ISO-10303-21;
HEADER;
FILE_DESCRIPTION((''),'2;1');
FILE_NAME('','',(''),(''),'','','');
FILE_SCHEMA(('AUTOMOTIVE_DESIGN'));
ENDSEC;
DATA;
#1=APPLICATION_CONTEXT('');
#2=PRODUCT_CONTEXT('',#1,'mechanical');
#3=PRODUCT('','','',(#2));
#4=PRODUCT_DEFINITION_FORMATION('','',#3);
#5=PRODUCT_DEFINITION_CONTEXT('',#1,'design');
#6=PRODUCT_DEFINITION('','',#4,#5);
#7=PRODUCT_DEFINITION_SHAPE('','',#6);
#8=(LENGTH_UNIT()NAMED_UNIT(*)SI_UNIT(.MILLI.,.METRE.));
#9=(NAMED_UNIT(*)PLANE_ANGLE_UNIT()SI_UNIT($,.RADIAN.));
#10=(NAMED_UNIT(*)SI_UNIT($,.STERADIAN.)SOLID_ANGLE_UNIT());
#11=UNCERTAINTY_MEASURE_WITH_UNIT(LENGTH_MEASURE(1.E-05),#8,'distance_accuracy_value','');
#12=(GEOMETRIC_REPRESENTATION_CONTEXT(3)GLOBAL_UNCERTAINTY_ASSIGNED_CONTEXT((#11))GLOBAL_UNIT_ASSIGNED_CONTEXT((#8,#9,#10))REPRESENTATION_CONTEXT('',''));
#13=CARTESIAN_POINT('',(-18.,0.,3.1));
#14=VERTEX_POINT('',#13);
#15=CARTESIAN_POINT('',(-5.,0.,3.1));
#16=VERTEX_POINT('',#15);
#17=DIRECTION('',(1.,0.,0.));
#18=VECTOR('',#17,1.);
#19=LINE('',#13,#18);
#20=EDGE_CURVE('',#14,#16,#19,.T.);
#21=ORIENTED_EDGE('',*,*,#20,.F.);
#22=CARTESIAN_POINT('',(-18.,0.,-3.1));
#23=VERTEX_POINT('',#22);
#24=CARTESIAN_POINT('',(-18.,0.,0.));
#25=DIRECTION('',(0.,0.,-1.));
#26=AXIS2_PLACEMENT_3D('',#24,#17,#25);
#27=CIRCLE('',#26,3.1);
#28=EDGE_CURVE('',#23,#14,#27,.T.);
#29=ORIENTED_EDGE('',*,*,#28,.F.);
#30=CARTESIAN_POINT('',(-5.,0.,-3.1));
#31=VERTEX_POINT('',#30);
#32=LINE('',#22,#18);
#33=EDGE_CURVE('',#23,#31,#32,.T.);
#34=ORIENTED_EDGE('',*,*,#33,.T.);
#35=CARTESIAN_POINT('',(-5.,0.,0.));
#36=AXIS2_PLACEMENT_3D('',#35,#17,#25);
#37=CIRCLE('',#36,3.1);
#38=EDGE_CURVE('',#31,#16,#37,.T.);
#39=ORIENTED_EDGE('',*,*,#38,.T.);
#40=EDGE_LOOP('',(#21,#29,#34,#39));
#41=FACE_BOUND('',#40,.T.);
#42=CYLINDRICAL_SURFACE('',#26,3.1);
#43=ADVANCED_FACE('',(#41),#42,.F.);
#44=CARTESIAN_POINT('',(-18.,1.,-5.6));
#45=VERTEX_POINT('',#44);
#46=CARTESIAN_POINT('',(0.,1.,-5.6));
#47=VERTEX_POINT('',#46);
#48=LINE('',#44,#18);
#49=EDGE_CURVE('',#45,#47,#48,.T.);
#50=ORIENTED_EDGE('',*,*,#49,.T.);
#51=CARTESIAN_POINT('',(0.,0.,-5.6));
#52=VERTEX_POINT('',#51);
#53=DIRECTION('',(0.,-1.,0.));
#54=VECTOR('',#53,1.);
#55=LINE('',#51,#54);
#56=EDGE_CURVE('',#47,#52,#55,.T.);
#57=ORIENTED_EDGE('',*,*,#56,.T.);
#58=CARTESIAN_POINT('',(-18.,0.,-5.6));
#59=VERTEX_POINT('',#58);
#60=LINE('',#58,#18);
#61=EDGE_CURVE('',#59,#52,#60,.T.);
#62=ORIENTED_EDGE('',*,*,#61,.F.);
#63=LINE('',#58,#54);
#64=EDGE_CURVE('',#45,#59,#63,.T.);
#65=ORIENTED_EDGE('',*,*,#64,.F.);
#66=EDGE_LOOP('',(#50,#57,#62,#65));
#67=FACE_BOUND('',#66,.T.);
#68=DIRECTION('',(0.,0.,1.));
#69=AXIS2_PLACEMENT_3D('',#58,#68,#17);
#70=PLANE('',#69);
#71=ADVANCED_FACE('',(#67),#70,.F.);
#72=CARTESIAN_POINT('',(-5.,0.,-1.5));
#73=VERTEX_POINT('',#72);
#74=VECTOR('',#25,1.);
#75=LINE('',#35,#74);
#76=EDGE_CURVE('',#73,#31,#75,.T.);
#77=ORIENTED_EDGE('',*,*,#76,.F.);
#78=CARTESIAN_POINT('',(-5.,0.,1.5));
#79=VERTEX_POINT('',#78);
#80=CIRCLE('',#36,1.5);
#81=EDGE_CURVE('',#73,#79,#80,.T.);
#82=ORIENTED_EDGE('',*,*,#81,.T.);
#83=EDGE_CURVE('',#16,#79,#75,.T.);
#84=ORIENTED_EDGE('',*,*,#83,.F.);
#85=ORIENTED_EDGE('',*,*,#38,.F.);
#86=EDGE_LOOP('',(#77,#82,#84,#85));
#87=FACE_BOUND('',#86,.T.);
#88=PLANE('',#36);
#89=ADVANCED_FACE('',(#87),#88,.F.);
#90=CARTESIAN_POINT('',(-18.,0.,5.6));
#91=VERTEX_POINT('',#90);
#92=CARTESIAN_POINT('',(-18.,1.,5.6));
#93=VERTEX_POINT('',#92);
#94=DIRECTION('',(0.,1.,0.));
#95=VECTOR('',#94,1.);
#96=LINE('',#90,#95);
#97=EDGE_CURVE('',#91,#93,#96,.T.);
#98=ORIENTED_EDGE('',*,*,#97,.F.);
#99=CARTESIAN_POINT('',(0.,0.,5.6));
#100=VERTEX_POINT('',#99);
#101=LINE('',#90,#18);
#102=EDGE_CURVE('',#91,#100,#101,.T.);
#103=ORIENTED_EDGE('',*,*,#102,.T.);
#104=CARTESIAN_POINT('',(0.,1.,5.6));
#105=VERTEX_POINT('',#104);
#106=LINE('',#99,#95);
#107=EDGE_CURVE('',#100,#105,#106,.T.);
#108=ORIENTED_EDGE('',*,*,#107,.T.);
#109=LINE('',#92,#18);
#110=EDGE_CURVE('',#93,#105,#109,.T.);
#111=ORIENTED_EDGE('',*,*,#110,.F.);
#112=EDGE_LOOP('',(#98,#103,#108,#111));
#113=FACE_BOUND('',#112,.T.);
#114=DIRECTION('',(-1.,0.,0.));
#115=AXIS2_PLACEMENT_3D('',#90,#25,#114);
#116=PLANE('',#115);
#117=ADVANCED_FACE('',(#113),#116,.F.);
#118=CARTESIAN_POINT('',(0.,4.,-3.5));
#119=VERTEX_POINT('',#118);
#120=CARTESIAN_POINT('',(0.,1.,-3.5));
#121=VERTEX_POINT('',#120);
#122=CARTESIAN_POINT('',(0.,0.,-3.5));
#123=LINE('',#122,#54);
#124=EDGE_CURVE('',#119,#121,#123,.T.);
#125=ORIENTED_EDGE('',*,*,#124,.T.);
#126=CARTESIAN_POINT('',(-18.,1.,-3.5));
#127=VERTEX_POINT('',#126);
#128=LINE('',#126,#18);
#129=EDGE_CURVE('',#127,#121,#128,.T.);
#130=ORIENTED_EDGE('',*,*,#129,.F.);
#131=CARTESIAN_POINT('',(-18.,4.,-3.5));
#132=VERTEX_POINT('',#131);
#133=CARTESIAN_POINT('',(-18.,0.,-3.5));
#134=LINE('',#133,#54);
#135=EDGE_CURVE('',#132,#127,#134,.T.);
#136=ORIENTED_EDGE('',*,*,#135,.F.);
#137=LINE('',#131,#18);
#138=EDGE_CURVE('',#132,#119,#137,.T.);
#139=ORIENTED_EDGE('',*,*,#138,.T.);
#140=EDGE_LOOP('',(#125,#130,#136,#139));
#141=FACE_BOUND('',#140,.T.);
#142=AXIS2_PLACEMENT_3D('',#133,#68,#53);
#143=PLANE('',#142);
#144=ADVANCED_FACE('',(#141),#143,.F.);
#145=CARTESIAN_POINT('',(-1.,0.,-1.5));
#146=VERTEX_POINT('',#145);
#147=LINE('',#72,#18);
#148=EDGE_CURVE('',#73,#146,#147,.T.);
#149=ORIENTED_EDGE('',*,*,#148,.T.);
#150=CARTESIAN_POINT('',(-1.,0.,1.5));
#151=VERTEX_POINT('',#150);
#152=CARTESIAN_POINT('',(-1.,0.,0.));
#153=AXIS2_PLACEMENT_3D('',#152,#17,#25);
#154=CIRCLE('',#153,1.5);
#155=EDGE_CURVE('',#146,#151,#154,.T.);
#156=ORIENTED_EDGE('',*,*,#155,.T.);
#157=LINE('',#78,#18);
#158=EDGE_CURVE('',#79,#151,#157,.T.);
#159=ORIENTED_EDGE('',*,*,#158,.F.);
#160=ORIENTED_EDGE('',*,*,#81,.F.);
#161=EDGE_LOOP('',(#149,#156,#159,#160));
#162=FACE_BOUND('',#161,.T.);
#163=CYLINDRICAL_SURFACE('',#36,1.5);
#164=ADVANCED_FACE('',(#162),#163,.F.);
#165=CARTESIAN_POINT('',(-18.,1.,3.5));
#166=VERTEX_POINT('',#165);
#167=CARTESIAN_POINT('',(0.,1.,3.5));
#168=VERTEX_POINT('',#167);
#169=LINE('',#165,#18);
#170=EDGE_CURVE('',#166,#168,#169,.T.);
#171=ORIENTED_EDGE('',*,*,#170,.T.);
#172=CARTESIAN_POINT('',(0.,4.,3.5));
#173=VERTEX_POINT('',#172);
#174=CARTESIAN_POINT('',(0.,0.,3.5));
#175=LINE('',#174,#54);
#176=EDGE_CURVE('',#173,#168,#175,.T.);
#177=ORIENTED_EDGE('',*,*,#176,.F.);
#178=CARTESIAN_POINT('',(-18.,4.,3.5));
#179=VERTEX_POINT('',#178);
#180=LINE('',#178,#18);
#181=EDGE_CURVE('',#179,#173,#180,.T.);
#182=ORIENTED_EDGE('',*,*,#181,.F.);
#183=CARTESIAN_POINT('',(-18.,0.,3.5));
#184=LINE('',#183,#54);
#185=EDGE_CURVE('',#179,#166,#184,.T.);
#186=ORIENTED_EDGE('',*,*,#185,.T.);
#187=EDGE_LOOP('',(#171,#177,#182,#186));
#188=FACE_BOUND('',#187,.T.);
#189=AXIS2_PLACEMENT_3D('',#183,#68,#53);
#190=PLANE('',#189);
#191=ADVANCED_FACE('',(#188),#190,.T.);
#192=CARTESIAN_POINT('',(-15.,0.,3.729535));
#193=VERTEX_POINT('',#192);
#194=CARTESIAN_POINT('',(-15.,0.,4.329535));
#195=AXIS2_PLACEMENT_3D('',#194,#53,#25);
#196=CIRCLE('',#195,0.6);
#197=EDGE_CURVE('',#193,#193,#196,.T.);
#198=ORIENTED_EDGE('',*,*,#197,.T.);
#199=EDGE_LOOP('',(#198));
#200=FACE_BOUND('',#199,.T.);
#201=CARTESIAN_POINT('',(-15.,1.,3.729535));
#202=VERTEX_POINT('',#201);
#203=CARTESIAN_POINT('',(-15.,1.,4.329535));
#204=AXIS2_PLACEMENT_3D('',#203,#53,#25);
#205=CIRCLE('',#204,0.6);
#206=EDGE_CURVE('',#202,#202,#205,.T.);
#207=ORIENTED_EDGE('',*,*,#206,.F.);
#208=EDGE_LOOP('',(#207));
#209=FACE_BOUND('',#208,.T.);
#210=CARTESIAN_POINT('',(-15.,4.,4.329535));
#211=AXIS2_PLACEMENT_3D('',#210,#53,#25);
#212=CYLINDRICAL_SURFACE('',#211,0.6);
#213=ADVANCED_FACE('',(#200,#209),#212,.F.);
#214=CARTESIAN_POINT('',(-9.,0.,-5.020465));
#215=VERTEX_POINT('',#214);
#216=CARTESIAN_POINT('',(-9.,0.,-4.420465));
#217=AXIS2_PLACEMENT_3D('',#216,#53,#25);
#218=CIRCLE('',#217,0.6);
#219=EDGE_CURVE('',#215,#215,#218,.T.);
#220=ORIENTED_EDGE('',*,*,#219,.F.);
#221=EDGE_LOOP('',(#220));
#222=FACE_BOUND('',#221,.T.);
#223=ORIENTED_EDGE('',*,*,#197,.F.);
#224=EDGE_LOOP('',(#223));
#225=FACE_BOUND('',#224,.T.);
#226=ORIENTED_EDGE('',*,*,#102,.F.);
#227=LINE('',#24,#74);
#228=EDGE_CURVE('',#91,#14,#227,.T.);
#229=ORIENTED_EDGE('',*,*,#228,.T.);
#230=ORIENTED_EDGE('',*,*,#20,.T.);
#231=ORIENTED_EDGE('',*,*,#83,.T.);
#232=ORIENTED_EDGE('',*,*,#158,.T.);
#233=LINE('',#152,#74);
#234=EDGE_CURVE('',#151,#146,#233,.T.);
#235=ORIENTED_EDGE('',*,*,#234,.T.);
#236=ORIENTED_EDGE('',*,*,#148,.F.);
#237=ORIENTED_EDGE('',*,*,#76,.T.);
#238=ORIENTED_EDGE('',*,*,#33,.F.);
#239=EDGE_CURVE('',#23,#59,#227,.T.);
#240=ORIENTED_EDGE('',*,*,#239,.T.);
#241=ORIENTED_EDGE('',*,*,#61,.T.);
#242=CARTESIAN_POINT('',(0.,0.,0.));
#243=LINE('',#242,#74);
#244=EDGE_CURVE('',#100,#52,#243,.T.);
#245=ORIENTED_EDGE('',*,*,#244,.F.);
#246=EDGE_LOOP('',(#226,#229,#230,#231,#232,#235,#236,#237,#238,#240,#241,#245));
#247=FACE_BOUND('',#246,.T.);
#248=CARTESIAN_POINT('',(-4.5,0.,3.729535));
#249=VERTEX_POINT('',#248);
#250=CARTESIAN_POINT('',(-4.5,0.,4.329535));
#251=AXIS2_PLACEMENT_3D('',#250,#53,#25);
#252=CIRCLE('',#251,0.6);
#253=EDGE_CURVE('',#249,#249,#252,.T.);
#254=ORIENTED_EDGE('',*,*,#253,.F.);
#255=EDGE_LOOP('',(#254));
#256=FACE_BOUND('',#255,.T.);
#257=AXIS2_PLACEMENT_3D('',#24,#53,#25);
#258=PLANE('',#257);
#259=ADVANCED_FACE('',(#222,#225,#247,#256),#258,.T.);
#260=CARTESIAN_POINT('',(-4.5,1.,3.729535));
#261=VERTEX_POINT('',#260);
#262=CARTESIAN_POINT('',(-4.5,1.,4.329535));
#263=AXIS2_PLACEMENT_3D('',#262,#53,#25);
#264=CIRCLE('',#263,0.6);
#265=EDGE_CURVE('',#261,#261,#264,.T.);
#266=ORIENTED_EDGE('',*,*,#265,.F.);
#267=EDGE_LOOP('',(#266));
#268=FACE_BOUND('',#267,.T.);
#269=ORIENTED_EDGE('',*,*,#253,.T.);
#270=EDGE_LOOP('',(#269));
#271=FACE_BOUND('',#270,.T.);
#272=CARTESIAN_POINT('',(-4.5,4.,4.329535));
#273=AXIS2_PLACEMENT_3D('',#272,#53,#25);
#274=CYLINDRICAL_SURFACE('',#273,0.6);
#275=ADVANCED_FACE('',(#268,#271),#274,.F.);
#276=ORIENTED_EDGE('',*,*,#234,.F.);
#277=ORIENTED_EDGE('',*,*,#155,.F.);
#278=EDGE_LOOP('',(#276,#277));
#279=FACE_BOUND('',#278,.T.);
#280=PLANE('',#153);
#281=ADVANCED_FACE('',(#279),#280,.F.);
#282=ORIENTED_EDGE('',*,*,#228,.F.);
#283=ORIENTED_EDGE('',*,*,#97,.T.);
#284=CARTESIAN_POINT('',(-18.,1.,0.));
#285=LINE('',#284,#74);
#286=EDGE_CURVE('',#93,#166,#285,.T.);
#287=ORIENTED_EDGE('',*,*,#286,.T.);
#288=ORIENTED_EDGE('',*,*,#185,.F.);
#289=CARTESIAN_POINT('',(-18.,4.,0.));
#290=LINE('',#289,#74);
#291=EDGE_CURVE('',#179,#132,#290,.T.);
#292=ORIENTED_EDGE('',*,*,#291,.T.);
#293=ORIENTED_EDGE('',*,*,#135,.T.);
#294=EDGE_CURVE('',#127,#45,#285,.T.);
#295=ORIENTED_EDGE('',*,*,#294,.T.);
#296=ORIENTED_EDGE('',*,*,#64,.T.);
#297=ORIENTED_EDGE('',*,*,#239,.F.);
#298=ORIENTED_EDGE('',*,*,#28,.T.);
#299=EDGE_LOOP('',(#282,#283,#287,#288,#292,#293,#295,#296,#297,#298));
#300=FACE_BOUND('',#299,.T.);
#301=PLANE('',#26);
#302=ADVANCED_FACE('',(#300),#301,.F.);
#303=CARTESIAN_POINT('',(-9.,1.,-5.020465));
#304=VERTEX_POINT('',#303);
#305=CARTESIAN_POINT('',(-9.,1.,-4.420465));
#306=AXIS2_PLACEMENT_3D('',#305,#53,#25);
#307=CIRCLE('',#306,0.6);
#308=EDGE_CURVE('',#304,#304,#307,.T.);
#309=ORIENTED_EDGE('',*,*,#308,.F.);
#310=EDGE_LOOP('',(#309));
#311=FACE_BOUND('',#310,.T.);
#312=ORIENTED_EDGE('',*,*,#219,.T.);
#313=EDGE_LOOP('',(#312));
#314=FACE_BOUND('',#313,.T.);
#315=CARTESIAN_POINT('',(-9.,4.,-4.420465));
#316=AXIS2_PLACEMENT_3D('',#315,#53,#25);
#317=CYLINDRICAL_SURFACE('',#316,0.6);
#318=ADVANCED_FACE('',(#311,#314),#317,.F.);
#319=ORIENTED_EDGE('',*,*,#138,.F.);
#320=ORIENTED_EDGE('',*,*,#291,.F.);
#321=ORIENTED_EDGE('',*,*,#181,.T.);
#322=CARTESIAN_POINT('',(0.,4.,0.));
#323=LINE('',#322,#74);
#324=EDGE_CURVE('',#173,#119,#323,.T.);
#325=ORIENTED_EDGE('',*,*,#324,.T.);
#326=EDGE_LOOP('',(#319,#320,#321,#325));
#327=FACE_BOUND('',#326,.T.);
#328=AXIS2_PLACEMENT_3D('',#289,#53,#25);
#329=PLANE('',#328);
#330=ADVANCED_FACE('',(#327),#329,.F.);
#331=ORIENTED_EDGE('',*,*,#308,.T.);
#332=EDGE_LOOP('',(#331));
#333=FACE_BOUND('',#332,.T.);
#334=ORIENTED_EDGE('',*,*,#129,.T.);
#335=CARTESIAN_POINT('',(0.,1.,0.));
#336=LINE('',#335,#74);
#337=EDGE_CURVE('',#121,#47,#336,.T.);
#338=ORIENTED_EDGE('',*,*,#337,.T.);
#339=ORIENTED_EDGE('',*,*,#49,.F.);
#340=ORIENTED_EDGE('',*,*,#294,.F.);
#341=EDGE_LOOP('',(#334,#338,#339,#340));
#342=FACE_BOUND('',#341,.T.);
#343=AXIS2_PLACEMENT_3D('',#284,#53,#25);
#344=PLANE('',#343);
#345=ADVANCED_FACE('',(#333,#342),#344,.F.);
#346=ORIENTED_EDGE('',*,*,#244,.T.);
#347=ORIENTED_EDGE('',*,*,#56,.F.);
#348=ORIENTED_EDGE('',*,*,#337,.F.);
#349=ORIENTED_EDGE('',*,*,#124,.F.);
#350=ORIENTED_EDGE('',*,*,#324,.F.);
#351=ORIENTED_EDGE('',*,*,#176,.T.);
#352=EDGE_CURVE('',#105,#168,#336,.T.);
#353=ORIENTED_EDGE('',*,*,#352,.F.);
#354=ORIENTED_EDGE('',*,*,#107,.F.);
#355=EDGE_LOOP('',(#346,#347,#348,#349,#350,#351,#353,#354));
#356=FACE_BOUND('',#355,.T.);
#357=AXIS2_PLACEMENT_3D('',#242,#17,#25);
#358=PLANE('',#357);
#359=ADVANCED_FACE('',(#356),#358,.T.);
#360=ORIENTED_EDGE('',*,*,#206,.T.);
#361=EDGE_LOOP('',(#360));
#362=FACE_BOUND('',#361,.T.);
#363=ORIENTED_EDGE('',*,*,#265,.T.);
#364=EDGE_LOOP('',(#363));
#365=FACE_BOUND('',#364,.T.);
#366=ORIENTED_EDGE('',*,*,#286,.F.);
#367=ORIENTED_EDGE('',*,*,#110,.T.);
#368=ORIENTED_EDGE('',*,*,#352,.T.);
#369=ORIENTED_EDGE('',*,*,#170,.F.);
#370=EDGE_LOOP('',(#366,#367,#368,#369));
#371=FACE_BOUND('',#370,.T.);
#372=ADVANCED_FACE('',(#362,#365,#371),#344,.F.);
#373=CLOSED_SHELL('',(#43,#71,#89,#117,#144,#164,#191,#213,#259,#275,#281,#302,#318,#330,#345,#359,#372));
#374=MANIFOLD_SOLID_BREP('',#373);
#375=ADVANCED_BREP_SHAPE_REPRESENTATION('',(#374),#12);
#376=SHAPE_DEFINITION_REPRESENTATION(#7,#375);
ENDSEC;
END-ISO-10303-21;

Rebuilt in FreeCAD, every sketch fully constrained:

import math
import FreeCAD as App
import Part
import Sketcher
from FreeCAD import Vector
Q = App.Units.Quantity

doc = App.newDocument("Part")
body = doc.addObject("PartDesign::Body", "Body")

# Sketch on YZ plane
sketch1 = doc.addObject("Sketcher::SketchObject", "Sketch")
body.addObject(sketch1)
sketch1.AttachmentSupport = (doc.YZ_Plane, [""])
sketch1.MapMode = "FlatFace"
sketch1.addGeometry([
    Part.ArcOfCircle(Part.Circle(Vector(0, 0, 0), Vector(0, 0, 1), 3.1), math.radians(-90), math.radians(90)),  # 0
    Part.LineSegment(Vector(0, -3.1, 0), Vector(0, -5.6, 0)),  # 1
    Part.LineSegment(Vector(0, -5.6, 0), Vector(1, -5.6, 0)),  # 2
    Part.LineSegment(Vector(1, -5.6, 0), Vector(1, -3.5, 0)),  # 3
    Part.LineSegment(Vector(1, -3.5, 0), Vector(4, -3.5, 0)),  # 4
    Part.LineSegment(Vector(4, -3.5, 0), Vector(4, 3.5, 0)),  # 5
    Part.LineSegment(Vector(4, 3.5, 0), Vector(1, 3.5, 0)),  # 6
    Part.LineSegment(Vector(1, 3.5, 0), Vector(1, 5.6, 0)),  # 7
    Part.LineSegment(Vector(1, 5.6, 0), Vector(0, 5.6, 0)),  # 8
    Part.LineSegment(Vector(0, 5.6, 0), Vector(0, 3.1, 0)),  # 9
], False)
sketch1.addConstraint([
    Sketcher.Constraint("Coincident", 0, 1, 1, 1),
    Sketcher.Constraint("Coincident", 1, 2, 2, 1),
    Sketcher.Constraint("Coincident", 2, 2, 3, 1),
    Sketcher.Constraint("Coincident", 3, 2, 4, 1),
    Sketcher.Constraint("Coincident", 4, 2, 5, 1),
    Sketcher.Constraint("Coincident", 5, 2, 6, 1),
    Sketcher.Constraint("Coincident", 6, 2, 7, 1),
    Sketcher.Constraint("Coincident", 7, 2, 8, 1),
    Sketcher.Constraint("Coincident", 8, 2, 9, 1),
    Sketcher.Constraint("Coincident", 9, 2, 0, 2),
    Sketcher.Constraint("Vertical", 1),
    Sketcher.Constraint("Horizontal", 2),
    Sketcher.Constraint("Vertical", 3),
    Sketcher.Constraint("Horizontal", 4),
    Sketcher.Constraint("Vertical", 5),
    Sketcher.Constraint("Horizontal", 6),
    Sketcher.Constraint("Vertical", 7),
    Sketcher.Constraint("Horizontal", 8),
    Sketcher.Constraint("Vertical", 9),
    Sketcher.Constraint("Coincident", 0, 3, -1, 1),
    Sketcher.Constraint("Symmetric", 1, 2, 8, 2, -1, 1),
    Sketcher.Constraint("Symmetric", 3, 2, 6, 2, -1),
    Sketcher.Constraint("PointOnObject", 0, 1, -2),
    Sketcher.Constraint("Radius", 0, Q("3.1 mm")),
    Sketcher.Constraint("DistanceX", 2, 1, 2, 2, Q("1 mm")),
    Sketcher.Constraint("DistanceX", 4, 1, 4, 2, Q("3 mm")),
    Sketcher.Constraint("DistanceY", 5, 1, 5, 2, Q("7 mm")),
    Sketcher.Constraint("DistanceY", 1, 2, 1, 1, Q("2.5 mm")),
])
pad1 = doc.addObject("PartDesign::Pad", "Pad")
body.addObject(pad1)
pad1.Profile = sketch1
pad1.Length = 18
pad1.Reversed = True

# Sketch on YZ plane
sketch2 = doc.addObject("Sketcher::SketchObject", "Sketch001")
body.addObject(sketch2)
sketch2.AttachmentSupport = (doc.YZ_Plane, [""])
sketch2.MapMode = "FlatFace"
sketch2.addGeometry([
    Part.ArcOfCircle(Part.Circle(Vector(0, 0, 0), Vector(0, 0, 1), 3.1), math.radians(-90), math.radians(90)),
    Part.LineSegment(Vector(0, 3.1, 0), Vector(0, 1.5, 0)),
    Part.ArcOfCircle(Part.Circle(Vector(0, 0, 0), Vector(0, 0, 1), 1.5), math.radians(-90), math.radians(90)),
    Part.LineSegment(Vector(0, -1.5, 0), Vector(0, -3.1, 0)),
], False)
sketch2.addConstraint([
    Sketcher.Constraint("Coincident", 0, 2, 1, 1),
    Sketcher.Constraint("Coincident", 1, 2, 2, 2),
    Sketcher.Constraint("Coincident", 2, 1, 3, 1),
    Sketcher.Constraint("Coincident", 3, 2, 0, 1),
    Sketcher.Constraint("Vertical", 1),
    Sketcher.Constraint("Vertical", 3),
    Sketcher.Constraint("Coincident", 0, 3, -1, 1),
    Sketcher.Constraint("Coincident", 2, 3, -1, 1),
    Sketcher.Constraint("PointOnObject", 0, 2, -2),
    Sketcher.Constraint("PointOnObject", 2, 1, -2),
    Sketcher.Constraint("Radius", 0, Q("3.1 mm")),
    Sketcher.Constraint("Radius", 2, Q("1.5 mm")),
])
pad2 = doc.addObject("PartDesign::Pad", "Pad001")
body.addObject(pad2)
pad2.Profile = sketch2
pad2.Length = 5
pad2.Reversed = True

# Sketch on YZ plane
sketch3 = doc.addObject("Sketcher::SketchObject", "Sketch002")
body.addObject(sketch3)
sketch3.AttachmentSupport = (doc.YZ_Plane, [""])
sketch3.MapMode = "FlatFace"
sketch3.addGeometry([
    Part.ArcOfCircle(Part.Circle(Vector(0, 0, 0), Vector(0, 0, 1), 1.5), math.radians(-90), math.radians(90)),
    Part.LineSegment(Vector(0, 1.5, 0), Vector(0, -1.5, 0)),
], False)
sketch3.addConstraint([
    Sketcher.Constraint("Coincident", 0, 1, 1, 2),
    Sketcher.Constraint("Coincident", 1, 1, 0, 2),
    Sketcher.Constraint("Vertical", 1),
    Sketcher.Constraint("Coincident", 0, 3, -1, 1),
    Sketcher.Constraint("PointOnObject", 0, 1, -2),
    Sketcher.Constraint("Radius", 0, Q("1.5 mm")),
])
pad3 = doc.addObject("PartDesign::Pad", "Pad002")
body.addObject(pad3)
pad3.Profile = sketch3
pad3.Length = 1
pad3.Reversed = True

# Sketch on XZ plane
sketch4 = doc.addObject("Sketcher::SketchObject", "Sketch003")
body.addObject(sketch4)
sketch4.AttachmentSupport = (doc.XZ_Plane, [""])
sketch4.MapMode = "FlatFace"
sketch4.addGeometry([
    Part.Circle(Vector(-15, 4.3, 0), Vector(0, 0, 1), 0.6),
    Part.Circle(Vector(-4.5, 4.3, 0), Vector(0, 0, 1), 0.6),
    Part.Circle(Vector(-9, -4.4, 0), Vector(0, 0, 1), 0.6),
], False)
sketch4.addConstraint([
    Sketcher.Constraint("Equal", 0, 1),
    Sketcher.Constraint("Equal", 1, 2),
    Sketcher.Constraint("Horizontal", 0, 3, 1, 3),
    Sketcher.Constraint("Diameter", 0, Q("1.2 mm")),
    Sketcher.Constraint("DistanceX", 0, 3, -1, 1, Q("15 mm")),
    Sketcher.Constraint("DistanceX", 2, 3, -1, 1, Q("9 mm")),
    Sketcher.Constraint("DistanceX", 1, 3, -1, 1, Q("4.5 mm")),
    Sketcher.Constraint("DistanceY", 2, 3, 1, 3, Q("8.75 mm")),
    Sketcher.Constraint("DistanceY", -1, 1, 0, 3, Q("4.329535 mm")),
])
pocket1 = doc.addObject("PartDesign::Pocket", "Pocket")
body.addObject(pocket1)
pocket1.Profile = sketch4
pocket1.Type = "ThroughAll"

doc.recompute()
